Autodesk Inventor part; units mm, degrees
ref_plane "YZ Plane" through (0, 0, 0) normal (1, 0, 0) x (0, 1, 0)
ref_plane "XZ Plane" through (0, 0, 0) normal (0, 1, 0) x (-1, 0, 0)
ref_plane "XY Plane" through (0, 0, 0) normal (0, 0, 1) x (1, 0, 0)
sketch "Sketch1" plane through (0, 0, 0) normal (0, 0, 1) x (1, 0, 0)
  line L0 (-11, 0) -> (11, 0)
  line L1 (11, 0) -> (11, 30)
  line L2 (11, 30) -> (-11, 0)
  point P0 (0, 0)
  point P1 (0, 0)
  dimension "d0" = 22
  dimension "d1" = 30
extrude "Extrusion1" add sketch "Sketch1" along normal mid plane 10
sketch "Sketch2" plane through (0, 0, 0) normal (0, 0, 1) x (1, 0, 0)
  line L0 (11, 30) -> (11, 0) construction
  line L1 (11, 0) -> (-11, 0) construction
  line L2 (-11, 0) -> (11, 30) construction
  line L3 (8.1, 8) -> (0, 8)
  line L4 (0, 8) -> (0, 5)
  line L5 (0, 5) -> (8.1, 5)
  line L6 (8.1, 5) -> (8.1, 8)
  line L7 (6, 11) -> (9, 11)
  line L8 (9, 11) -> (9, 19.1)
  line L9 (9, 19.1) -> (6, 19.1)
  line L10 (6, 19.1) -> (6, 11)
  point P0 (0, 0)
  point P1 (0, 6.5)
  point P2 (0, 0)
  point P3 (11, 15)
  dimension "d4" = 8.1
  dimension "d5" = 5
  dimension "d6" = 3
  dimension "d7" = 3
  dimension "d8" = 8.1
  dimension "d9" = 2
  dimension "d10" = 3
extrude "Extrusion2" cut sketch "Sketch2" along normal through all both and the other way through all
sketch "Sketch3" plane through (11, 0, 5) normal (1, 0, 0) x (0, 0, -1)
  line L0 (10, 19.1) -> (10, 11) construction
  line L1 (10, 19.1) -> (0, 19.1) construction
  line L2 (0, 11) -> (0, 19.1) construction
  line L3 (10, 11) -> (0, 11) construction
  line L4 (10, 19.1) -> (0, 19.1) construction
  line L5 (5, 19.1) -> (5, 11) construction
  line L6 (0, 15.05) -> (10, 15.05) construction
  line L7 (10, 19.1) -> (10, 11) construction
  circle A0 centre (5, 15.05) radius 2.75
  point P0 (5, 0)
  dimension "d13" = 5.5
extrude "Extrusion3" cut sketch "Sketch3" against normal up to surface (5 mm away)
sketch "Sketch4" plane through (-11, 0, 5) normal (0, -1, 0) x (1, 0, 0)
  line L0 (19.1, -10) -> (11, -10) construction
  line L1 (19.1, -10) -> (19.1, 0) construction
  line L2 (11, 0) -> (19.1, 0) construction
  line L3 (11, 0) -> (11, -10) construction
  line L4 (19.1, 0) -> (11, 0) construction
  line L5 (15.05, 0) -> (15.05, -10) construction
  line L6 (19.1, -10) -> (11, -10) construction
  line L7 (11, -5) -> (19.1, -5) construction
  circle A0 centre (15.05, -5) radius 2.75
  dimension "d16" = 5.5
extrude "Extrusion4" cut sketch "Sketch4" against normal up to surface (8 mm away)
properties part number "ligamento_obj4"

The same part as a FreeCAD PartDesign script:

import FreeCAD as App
import Part
import Sketcher
from FreeCAD import Vector
Q = App.Units.Quantity


def add_polygon(sketch, points):
    """Adds a closed chain of lines whose ends are joined by coincident constraints."""
    first, n = sketch.GeometryCount, len(points)
    for a, b in zip(points, points[1:] + points[:1]):
        sketch.addGeometry(Part.LineSegment(App.Vector(*a, 0), App.Vector(*b, 0)), False)
    for i in range(n):
        sketch.addConstraint(Sketcher.Constraint("Coincident", first + i, 2, first + (i + 1) % n, 1))

doc = App.newDocument("Part")
body = doc.addObject("PartDesign::Body", "Body")

sketch1 = body.newObject("Sketcher::SketchObject", "Sketch")
sketch1.AttachmentSupport = (doc.getObject("XY_Plane"), [""])
sketch1.MapMode = "FlatFace"
add_polygon(sketch1, [(11, 30), (-11, 0), (11, 0)])
sketch1.addConstraint([
    Sketcher.Constraint("Horizontal", 1),
    Sketcher.Constraint("Vertical", 2),
    Sketcher.Constraint("Symmetric", 0, 2, 1, 2, -1, 1),
    Sketcher.Constraint("DistanceX", 1, 1, 1, 2, Q("22 mm")),
    Sketcher.Constraint("DistanceY", 2, 1, 2, 2, Q("30 mm")),
])
pad1 = body.newObject("PartDesign::Pad", "Pad")
pad1.Profile = sketch1
pad1.Length = 10
pad1.Midplane = True

sketch2 = body.newObject("Sketcher::SketchObject", "Sketch001")
sketch2.AttachmentSupport = (doc.getObject("XY_Plane"), [""])
sketch2.MapMode = "FlatFace"
add_polygon(sketch2, [(8.1, 5), (8.1, 8), (0, 8), (0, 5)])
add_polygon(sketch2, [(6, 19.1), (6, 11), (9, 11), (9, 19.1)])
sketch2.addConstraint([
    Sketcher.Constraint("Vertical", 0),
    Sketcher.Constraint("Horizontal", 1),
    Sketcher.Constraint("Vertical", 2),
    Sketcher.Constraint("Horizontal", 3),
    Sketcher.Constraint("Vertical", 4),
    Sketcher.Constraint("Horizontal", 5),
    Sketcher.Constraint("Vertical", 6),
    Sketcher.Constraint("Horizontal", 7),
    Sketcher.Constraint("PointOnObject", 1, 2, -2),
    Sketcher.Constraint("Equal", 7, 0),
    Sketcher.Constraint("Equal", 3, 4),
    Sketcher.Constraint("DistanceX", 5, 1, 5, 2, Q("3 mm")),
    Sketcher.Constraint("DistanceX", 1, 2, 1, 1, Q("8.1 mm")),
    Sketcher.Constraint("DistanceY", -1, 1, 2, 2, Q("5 mm")),
    Sketcher.Constraint("DistanceY", 0, 2, 4, 2, Q("3 mm")),
    Sketcher.Constraint("DistanceX", -1, 1, 4, 2, Q("6 mm")),
])
pocket1 = body.newObject("PartDesign::Pocket", "Pocket")
pocket1.Profile = sketch2
pocket1.Type = "ThroughAll"
pocket1.Midplane = True

sketch3 = body.newObject("Sketcher::SketchObject", "Sketch002")
sketch3.AttachmentSupport = (doc.getObject("YZ_Plane"), [""])
sketch3.MapMode = "FlatFace"
sketch3.AttachmentOffset = App.Placement(Vector(0, 0, 11), App.Rotation())
sketch3.addGeometry(Part.Circle(Vector(15.05, 0, 0), Vector(0, 0, 1), 2.75), False)
sketch3.addConstraint([
    Sketcher.Constraint("PointOnObject", 0, 3, -1),
    Sketcher.Constraint("Diameter", 0, Q("5.5 mm")),
    Sketcher.Constraint("DistanceX", -1, 1, 0, 3, Q("15.05 mm")),
])
pocket2 = body.newObject("PartDesign::Pocket", "Pocket001")
pocket2.Profile = sketch3
pocket2.Length = 5

sketch4 = body.newObject("Sketcher::SketchObject", "Sketch003")
sketch4.AttachmentSupport = (doc.getObject("XZ_Plane"), [""])
sketch4.MapMode = "FlatFace"
sketch4.addGeometry(Part.Circle(Vector(4.05, 0, 0), Vector(0, 0, 1), 2.75), False)
sketch4.addConstraint([
    Sketcher.Constraint("PointOnObject", 0, 3, -1),
    Sketcher.Constraint("Diameter", 0, Q("5.5 mm")),
    Sketcher.Constraint("DistanceX", -1, 1, 0, 3, Q("4.05 mm")),
])
pocket3 = body.newObject("PartDesign::Pocket", "Pocket002")
pocket3.Profile = sketch4
pocket3.Length = 8

doc.recompute()
